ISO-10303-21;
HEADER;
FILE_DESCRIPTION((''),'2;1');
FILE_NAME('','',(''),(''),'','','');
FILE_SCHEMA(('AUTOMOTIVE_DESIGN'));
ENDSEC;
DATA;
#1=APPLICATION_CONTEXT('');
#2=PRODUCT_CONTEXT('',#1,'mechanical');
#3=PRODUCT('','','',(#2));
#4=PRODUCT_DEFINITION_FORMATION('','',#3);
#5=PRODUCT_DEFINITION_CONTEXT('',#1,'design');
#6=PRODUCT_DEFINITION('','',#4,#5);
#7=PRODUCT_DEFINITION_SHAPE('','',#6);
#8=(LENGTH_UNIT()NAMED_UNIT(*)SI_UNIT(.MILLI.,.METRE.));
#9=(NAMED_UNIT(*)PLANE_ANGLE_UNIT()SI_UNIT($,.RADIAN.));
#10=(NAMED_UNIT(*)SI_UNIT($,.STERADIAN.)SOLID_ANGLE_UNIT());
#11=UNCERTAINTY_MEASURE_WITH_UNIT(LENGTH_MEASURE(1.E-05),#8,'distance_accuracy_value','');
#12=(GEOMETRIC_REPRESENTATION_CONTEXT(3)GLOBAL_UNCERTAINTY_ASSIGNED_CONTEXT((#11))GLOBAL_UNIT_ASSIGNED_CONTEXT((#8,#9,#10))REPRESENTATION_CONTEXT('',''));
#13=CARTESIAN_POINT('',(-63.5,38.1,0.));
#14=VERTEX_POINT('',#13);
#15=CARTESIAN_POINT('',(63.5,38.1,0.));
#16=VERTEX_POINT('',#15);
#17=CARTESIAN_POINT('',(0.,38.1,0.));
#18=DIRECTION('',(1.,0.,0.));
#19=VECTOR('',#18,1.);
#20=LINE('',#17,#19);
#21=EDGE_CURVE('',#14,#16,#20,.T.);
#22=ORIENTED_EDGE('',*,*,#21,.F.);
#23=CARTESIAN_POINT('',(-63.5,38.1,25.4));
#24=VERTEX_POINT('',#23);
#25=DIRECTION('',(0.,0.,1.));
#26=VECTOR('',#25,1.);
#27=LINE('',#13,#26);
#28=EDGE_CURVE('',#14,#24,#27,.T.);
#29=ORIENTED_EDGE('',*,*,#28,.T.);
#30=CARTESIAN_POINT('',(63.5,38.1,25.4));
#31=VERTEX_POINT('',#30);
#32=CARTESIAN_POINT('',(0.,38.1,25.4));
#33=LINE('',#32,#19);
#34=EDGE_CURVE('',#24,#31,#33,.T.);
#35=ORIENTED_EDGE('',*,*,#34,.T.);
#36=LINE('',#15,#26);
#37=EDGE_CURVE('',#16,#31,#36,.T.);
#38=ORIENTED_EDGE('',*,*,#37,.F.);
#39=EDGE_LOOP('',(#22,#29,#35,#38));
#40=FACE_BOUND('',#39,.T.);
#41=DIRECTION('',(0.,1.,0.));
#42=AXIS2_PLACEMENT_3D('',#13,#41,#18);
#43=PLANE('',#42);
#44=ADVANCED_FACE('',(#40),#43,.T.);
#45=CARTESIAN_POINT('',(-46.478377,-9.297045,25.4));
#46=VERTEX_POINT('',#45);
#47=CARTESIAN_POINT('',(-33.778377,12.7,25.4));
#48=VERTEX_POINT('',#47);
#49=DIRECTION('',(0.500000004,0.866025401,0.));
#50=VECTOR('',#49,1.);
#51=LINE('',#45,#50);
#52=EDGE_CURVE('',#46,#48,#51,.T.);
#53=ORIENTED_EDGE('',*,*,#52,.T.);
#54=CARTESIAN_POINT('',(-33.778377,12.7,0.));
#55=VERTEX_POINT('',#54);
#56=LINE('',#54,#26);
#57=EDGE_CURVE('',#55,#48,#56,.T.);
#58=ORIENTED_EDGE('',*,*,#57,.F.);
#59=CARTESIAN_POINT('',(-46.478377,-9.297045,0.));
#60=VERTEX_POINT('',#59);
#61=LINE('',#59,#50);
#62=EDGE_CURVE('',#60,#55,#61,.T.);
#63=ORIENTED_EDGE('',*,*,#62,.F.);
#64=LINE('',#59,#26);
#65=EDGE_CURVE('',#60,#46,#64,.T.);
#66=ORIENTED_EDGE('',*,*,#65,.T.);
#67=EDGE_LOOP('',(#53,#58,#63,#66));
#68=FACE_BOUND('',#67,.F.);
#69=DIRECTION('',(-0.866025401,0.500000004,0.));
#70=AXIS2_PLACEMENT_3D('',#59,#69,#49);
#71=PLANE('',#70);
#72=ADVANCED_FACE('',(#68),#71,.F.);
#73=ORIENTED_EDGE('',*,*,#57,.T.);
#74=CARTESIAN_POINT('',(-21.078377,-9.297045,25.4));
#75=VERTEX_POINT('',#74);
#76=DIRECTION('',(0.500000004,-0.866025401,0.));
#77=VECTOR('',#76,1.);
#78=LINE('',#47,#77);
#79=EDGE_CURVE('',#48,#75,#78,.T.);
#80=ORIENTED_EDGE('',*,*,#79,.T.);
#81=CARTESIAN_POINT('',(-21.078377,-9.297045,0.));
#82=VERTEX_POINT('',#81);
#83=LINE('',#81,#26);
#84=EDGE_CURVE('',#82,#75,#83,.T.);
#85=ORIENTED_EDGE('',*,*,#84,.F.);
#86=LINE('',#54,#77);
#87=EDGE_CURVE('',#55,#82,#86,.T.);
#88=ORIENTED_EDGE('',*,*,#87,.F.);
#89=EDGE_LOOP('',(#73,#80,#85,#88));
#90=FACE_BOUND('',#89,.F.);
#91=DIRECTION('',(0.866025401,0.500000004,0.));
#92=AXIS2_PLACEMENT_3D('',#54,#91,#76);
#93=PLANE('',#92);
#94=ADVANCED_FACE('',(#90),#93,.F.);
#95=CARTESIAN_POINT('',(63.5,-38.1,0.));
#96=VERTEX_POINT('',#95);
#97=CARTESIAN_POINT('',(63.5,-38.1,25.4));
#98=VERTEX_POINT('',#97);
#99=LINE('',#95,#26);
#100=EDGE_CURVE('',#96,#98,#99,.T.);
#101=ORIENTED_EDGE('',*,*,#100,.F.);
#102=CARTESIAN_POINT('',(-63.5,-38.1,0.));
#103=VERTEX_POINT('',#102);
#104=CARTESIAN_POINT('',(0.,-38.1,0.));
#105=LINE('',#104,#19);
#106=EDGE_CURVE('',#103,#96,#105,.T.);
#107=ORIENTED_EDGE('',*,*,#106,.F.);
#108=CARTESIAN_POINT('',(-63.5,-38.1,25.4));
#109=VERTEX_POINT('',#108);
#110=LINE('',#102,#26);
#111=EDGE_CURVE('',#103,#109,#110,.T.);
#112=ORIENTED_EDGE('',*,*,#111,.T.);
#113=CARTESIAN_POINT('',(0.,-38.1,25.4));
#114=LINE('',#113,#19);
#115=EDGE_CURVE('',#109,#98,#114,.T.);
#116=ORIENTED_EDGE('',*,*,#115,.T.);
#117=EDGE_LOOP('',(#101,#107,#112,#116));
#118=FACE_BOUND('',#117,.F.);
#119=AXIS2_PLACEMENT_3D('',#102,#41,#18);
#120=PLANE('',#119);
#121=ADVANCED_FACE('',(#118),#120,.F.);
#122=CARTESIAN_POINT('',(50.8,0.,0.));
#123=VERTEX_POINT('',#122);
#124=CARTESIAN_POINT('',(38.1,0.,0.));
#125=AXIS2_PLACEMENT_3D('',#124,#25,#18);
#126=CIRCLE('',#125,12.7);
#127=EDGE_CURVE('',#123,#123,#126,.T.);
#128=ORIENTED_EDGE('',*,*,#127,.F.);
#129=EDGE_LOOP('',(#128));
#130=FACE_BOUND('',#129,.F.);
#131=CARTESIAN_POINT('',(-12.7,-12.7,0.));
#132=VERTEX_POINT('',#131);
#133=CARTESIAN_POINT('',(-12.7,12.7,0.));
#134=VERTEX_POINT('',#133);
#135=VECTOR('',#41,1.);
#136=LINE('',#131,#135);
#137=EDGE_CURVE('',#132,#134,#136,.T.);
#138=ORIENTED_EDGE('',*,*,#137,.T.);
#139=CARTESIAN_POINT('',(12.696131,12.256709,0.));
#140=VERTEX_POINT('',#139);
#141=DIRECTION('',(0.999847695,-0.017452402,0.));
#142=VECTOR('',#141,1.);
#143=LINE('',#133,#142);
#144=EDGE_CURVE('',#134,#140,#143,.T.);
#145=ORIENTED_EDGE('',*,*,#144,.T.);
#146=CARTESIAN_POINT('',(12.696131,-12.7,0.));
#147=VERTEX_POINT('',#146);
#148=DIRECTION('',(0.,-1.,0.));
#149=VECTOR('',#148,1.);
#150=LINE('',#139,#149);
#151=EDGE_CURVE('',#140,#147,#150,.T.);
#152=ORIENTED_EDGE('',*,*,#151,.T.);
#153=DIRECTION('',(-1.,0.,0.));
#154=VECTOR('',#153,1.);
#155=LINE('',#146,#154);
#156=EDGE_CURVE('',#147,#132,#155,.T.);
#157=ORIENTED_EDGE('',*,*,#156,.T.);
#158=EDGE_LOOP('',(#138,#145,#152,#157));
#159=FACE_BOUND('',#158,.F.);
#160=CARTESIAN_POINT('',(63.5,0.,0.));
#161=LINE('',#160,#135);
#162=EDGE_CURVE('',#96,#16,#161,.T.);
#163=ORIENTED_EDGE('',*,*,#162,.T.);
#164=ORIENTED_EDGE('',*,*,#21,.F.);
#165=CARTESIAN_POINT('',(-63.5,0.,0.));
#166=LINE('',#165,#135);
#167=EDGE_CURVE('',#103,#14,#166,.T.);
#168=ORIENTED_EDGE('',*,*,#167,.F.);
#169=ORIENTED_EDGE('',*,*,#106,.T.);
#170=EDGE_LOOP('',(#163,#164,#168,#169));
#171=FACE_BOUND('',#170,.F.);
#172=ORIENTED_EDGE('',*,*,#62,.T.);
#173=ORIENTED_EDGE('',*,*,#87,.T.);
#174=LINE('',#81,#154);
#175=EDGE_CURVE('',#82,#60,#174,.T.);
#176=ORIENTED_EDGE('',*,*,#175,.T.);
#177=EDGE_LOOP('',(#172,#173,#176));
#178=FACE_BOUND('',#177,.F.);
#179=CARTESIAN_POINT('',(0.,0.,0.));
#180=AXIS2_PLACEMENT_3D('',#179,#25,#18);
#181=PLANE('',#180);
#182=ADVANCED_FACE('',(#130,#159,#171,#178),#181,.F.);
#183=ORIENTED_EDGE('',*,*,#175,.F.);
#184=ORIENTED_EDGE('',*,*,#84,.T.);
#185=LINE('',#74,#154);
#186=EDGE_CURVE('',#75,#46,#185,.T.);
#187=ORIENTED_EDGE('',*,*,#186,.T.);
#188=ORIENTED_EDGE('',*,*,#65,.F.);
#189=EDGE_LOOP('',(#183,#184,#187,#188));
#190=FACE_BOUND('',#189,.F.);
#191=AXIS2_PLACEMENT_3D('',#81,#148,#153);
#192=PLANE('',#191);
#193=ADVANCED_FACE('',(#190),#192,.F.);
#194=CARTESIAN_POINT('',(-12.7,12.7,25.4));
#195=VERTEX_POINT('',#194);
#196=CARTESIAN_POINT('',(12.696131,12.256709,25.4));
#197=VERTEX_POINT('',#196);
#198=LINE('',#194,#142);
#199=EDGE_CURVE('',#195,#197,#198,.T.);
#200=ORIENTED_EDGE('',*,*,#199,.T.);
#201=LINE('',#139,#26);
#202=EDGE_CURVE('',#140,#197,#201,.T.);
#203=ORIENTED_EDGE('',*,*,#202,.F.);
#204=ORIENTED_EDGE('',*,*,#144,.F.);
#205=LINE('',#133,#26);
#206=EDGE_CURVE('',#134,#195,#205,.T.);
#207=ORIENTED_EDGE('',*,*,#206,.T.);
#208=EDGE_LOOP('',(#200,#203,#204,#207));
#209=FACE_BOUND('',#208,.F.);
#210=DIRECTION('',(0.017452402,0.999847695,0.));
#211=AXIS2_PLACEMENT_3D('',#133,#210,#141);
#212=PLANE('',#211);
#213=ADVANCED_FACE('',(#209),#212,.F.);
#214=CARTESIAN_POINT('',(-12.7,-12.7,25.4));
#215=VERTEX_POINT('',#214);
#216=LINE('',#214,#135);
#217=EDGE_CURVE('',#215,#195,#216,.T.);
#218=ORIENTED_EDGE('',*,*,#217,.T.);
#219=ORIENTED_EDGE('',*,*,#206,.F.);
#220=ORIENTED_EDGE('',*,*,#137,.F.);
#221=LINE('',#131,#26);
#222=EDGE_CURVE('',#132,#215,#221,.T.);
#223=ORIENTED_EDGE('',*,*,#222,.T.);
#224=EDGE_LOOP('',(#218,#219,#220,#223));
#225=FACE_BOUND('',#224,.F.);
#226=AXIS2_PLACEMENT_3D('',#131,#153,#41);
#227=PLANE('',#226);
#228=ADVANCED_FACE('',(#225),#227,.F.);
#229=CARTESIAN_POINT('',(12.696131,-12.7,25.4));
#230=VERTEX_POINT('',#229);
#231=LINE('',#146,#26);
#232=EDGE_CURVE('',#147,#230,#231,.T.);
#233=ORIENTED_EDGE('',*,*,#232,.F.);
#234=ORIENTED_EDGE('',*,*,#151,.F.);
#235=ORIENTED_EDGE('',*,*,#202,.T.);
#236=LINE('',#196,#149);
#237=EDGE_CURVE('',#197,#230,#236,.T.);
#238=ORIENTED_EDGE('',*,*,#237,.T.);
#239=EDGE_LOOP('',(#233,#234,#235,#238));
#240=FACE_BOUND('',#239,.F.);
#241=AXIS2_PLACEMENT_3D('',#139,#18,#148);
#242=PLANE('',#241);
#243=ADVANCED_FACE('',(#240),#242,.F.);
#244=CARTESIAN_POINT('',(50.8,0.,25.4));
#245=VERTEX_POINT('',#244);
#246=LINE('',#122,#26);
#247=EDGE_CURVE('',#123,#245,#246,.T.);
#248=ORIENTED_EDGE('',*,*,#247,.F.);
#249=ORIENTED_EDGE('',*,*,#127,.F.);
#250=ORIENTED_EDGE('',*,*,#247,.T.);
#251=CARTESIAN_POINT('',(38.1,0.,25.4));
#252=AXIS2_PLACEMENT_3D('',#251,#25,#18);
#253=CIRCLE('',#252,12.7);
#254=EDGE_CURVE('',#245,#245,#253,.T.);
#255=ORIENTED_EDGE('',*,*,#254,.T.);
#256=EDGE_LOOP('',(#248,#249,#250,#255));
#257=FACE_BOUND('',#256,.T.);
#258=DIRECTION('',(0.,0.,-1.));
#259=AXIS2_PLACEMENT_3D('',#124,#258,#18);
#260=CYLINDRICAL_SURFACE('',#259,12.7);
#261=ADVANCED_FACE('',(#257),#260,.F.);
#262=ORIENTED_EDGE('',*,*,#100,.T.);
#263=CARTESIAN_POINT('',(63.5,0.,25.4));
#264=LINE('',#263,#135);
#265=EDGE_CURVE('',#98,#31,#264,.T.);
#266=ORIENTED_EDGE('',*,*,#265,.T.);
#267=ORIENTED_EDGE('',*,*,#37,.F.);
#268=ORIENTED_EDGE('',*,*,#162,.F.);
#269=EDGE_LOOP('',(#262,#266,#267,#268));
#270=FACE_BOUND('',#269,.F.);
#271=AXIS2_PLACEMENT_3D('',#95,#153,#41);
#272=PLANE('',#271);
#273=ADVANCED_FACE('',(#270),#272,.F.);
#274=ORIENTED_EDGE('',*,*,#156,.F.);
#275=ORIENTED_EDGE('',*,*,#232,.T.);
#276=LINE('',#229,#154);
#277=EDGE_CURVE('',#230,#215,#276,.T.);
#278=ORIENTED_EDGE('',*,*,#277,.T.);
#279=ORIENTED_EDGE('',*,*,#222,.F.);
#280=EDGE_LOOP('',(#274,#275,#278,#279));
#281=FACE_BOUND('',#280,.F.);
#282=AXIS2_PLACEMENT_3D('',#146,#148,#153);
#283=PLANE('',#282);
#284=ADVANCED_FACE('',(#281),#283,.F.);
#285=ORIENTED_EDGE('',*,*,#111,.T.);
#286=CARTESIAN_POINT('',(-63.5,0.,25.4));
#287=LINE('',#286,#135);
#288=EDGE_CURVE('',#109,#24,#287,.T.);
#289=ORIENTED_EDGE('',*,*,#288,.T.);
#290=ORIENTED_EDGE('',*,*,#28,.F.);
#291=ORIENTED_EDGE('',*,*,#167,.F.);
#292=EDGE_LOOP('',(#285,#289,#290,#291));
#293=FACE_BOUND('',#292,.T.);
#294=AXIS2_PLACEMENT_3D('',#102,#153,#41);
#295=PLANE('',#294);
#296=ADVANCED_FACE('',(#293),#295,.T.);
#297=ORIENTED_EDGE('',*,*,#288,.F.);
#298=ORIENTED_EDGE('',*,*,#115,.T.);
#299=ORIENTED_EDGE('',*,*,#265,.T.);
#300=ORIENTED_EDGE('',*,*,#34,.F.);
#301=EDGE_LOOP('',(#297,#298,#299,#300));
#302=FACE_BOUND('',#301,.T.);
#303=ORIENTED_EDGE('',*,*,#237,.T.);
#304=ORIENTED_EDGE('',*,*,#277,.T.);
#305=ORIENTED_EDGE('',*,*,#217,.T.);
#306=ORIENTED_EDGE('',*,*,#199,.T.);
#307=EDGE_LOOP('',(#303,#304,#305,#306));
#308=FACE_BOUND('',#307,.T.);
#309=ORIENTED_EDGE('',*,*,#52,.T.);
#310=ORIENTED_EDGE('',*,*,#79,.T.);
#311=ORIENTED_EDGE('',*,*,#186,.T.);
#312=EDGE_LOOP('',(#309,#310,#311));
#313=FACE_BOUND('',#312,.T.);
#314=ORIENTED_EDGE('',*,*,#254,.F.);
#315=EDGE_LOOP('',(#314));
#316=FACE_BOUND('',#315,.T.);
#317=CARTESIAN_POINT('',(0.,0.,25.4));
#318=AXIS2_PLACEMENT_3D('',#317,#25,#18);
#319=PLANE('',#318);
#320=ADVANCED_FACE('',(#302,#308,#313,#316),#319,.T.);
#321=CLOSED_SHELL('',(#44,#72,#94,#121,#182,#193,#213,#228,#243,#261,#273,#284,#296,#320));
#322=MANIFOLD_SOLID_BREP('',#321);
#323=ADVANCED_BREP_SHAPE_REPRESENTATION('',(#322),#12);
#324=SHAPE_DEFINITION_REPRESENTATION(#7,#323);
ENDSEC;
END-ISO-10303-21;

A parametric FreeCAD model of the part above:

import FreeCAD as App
import Part
import Sketcher
from FreeCAD import Vector
Q = App.Units.Quantity

doc = App.newDocument("Part")
body = doc.addObject("PartDesign::Body", "Body")

sketch1 = body.newObject("Sketcher::SketchObject", "Sketch")
sketch1.AttachmentSupport = (doc.getObject("XY_Plane"), [""])
sketch1.MapMode = "FlatFace"
sketch1.addGeometry([
    Part.LineSegment(Vector(-64, 38, 0), Vector(-64, -38, 0)),
    Part.LineSegment(Vector(-64, -38, 0), Vector(64, -38, 0)),
    Part.LineSegment(Vector(64, -38, 0), Vector(64, 38, 0)),
    Part.LineSegment(Vector(64, 38, 0), Vector(-64, 38, 0)),
    Part.LineSegment(Vector(13, -13, 0), Vector(-13, -13, 0)),
    Part.LineSegment(Vector(-13, -13, 0), Vector(-13, 13, 0)),
    Part.LineSegment(Vector(-13, 13, 0), Vector(13, 12, 0)),
    Part.LineSegment(Vector(13, 12, 0), Vector(13, -13, 0)),
    Part.Circle(Vector(38, 0, 0), Vector(0, 0, 1), 13),
    Part.LineSegment(Vector(-21, -9, 0), Vector(-46, -9, 0)),
    Part.LineSegment(Vector(-46, -9, 0), Vector(-34, 13, 0)),
    Part.LineSegment(Vector(-34, 13, 0), Vector(-21, -9, 0)),
], False)
sketch1.addConstraint([
    Sketcher.Constraint("Coincident", 0, 2, 1, 1),
    Sketcher.Constraint("Coincident", 1, 2, 2, 1),
    Sketcher.Constraint("Coincident", 2, 2, 3, 1),
    Sketcher.Constraint("Coincident", 3, 2, 0, 1),
    Sketcher.Constraint("Coincident", 4, 2, 5, 1),
    Sketcher.Constraint("Coincident", 5, 2, 6, 1),
    Sketcher.Constraint("Coincident", 6, 2, 7, 1),
    Sketcher.Constraint("Coincident", 7, 2, 4, 1),
    Sketcher.Constraint("Coincident", 9, 2, 10, 1),
    Sketcher.Constraint("Coincident", 10, 2, 11, 1),
    Sketcher.Constraint("Coincident", 11, 2, 9, 1),
    Sketcher.Constraint("Vertical", 0),
    Sketcher.Constraint("Horizontal", 1),
    Sketcher.Constraint("Vertical", 2),
    Sketcher.Constraint("Horizontal", 3),
    Sketcher.Constraint("Horizontal", 4),
    Sketcher.Constraint("Vertical", 5),
    Sketcher.Constraint("Vertical", 7),
    Sketcher.Constraint("Horizontal", 9),
    Sketcher.Constraint("Symmetric", 0, 2, 2, 2, -1, 1),
    Sketcher.Constraint("PointOnObject", 8, 3, -1),
    Sketcher.Constraint("Horizontal", 5, 2, 10, 2),
    Sketcher.Constraint("Equal", 9, 5),
    Sketcher.Constraint("Equal", 6, 10),
    Sketcher.Constraint("Equal", 10, 11),
    Sketcher.Constraint("Diameter", 8, Q("1 in")),
    Sketcher.Constraint("DistanceX", 1, 1, 1, 2, Q("5 in")),
    Sketcher.Constraint("DistanceX", 9, 2, 9, 1, Q("1 in")),
    Sketcher.Constraint("DistanceY", 0, 2, 0, 1, Q("3 in")),
    Sketcher.Constraint("Distance", 6, Q("1 in")),
    Sketcher.Constraint("Angle", 6, Q("-1 deg")),
    Sketcher.Constraint("DistanceX", 0, 2, 8, 3, Q("4 in")),
    Sketcher.Constraint("DistanceX", 4, 2, 8, 3, Q("2 in")),
    Sketcher.Constraint("DistanceY", 0, 2, 4, 2, Q("1 in")),
    Sketcher.Constraint("DistanceX", 9, 2, 7, 2, Q("59.174508 mm")),
])
pad1 = body.newObject("PartDesign::Pad", "Pad")
pad1.Profile = sketch1
pad1.Length = Q("1 in")

doc.recompute()
